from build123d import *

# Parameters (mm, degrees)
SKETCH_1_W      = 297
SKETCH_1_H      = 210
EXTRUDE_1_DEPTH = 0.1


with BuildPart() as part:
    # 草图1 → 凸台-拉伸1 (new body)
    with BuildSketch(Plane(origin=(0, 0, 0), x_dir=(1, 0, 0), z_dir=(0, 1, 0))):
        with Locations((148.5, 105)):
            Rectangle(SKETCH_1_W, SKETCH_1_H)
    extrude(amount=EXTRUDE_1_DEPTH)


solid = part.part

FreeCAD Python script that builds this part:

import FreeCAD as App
import Part
import Sketcher

V = App.Vector

doc = App.newDocument("Part")
params = doc.addObject("Spreadsheet::Sheet", "Params")
for row, (alias, value) in enumerate([
    ("sketch1_width", "297 mm"),
    ("sketch1_height", "210 mm"),
    ("pad1_length", "0.1 mm"),
], start=1):
    params.set(f"A{row}", alias)
    params.set(f"B{row}", "=" + value)
    params.setAlias(f"B{row}", alias)

body = doc.addObject("PartDesign::Body", "Body")

sketch1 = body.newObject("Sketcher::SketchObject", "Sketch")
sketch1.AttachmentSupport = (doc.getObject("XZ_Plane"), [""])
sketch1.MapMode = "FlatFace"
sketch1.addGeometry([
    Part.LineSegment(V(0, -210, 0), V(0, 0, 0)),
    Part.LineSegment(V(0, 0, 0), V(297, 0, 0)),
    Part.LineSegment(V(297, 0, 0), V(297, -210, 0)),
    Part.LineSegment(V(297, -210, 0), V(0, -210, 0)),
], False)
sketch1.addConstraint([
    Sketcher.Constraint("Coincident", 0, 2, 1, 1),
    Sketcher.Constraint("Coincident", 1, 2, 2, 1),
    Sketcher.Constraint("Coincident", 2, 2, 3, 1),
    Sketcher.Constraint("Coincident", 3, 2, 0, 1),
    Sketcher.Constraint("Vertical", 0),
    Sketcher.Constraint("Horizontal", 1),
    Sketcher.Constraint("Vertical", 2),
    Sketcher.Constraint("Horizontal", 3),
    Sketcher.Constraint("Coincident", 0, 2, -1, 1),
    Sketcher.Constraint("DistanceX", 1, 1, 1, 2, 297.0),
    Sketcher.Constraint("DistanceY", 0, 1, 0, 2, 210.0),
])
sketch1.setExpression("Constraints[9]", "Params.sketch1_width")
sketch1.setExpression("Constraints[10]", "Params.sketch1_height")
pad1 = body.newObject("PartDesign::Pad", "Pad")
pad1.Profile = sketch1
pad1.setExpression("Length", "Params.pad1_length")
pad1.Reversed = True

doc.recompute()
